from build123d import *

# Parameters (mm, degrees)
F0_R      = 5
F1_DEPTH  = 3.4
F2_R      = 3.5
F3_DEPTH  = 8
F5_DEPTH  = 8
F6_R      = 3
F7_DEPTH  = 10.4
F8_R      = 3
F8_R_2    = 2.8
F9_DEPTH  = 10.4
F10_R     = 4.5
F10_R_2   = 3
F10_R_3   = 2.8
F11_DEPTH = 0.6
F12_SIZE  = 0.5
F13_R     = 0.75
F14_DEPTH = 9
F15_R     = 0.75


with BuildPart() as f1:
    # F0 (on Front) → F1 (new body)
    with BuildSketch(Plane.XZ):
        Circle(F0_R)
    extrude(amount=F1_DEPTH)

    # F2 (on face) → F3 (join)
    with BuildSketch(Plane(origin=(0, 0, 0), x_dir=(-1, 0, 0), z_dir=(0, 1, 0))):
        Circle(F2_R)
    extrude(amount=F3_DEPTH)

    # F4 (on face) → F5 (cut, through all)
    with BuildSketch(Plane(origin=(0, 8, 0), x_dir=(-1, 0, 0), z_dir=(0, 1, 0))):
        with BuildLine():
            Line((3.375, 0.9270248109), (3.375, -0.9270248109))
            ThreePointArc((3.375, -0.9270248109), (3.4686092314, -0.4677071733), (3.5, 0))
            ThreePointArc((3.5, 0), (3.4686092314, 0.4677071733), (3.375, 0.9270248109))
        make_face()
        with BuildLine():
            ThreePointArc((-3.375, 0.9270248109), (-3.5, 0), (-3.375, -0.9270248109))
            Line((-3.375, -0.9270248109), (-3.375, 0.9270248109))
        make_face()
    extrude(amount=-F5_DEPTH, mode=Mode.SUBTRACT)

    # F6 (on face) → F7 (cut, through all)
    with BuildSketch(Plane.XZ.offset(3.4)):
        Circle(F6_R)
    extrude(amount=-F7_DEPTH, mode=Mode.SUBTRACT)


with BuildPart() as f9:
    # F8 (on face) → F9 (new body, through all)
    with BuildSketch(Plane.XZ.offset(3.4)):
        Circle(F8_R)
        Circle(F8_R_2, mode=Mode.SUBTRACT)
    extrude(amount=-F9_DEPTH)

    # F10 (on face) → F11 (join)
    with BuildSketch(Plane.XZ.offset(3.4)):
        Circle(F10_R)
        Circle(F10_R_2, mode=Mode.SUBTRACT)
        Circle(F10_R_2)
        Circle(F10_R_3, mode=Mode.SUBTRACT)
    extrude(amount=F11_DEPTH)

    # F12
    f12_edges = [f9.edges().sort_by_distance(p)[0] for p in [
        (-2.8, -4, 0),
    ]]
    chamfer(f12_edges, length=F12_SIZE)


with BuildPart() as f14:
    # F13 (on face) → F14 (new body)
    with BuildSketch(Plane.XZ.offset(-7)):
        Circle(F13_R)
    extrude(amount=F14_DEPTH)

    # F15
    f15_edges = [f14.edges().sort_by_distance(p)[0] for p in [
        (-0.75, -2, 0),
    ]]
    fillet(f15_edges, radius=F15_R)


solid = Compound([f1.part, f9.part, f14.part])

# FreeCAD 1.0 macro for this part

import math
import FreeCAD as App
import Part
import Sketcher

V = App.Vector
Q = App.Units.Quantity


def edges_at(feature, points):
    """Names of the edges that pass closest to the given points."""
    edges = feature.Shape.Edges
    near = lambda p: min(range(len(edges)), key=lambda i: edges[i].distToShape(Part.Vertex(*p))[0])
    return sorted({f"Edge{near(p) + 1}" for p in points})

doc = App.newDocument("Part")
body = doc.addObject("PartDesign::Body", "Body")

# Sketch on XZ plane
sketch1 = body.newObject("Sketcher::SketchObject", "Sketch")
sketch1.AttachmentSupport = (doc.getObject("XZ_Plane"), [""])
sketch1.MapMode = "FlatFace"
sketch1.addGeometry(Part.Circle(V(0, 0, 0), V(0, 0, 1), 5), False)
sketch1.addConstraint(Sketcher.Constraint("Coincident", 0, 3, -1, 1))
sketch1.addConstraint(Sketcher.Constraint("Diameter", 0, Q("10 mm")))
pad1 = body.newObject("PartDesign::Pad", "Pad")
pad1.Profile = sketch1
pad1.Length = 3.4

# Sketch on XZ plane
sketch2 = body.newObject("Sketcher::SketchObject", "Sketch001")
sketch2.AttachmentSupport = (doc.getObject("XZ_Plane"), [""])
sketch2.MapMode = "FlatFace"
sketch2.addGeometry(Part.Circle(V(0, 0, 0), V(0, 0, 1), 3.5), False)
sketch2.addConstraint(Sketcher.Constraint("Coincident", 0, 3, -1, 1))
sketch2.addConstraint(Sketcher.Constraint("Diameter", 0, Q("7 mm")))
pad2 = body.newObject("PartDesign::Pad", "Pad001")
pad2.Profile = sketch2
pad2.Length = 8
pad2.Reversed = True

# Sketch on XZ plane
sketch3 = body.newObject("Sketcher::SketchObject", "Sketch002")
sketch3.AttachmentSupport = (doc.getObject("XZ_Plane"), [""])
sketch3.MapMode = "FlatFace"
sketch3.AttachmentOffset = App.Placement(V(0, 0, -8), App.Rotation())
sketch3.addGeometry(Part.LineSegment(V(-3.4, 0.9, 0), V(-3.4, -0.9, 0)), False)
sketch3.addGeometry(Part.ArcOfCircle(Part.Circle(V(0, 0, 0), V(0, 0, 1), 3.5), math.radians(180), math.radians(195.36)), False)
sketch3.addGeometry(Part.ArcOfCircle(Part.Circle(V(0, 0, 0), V(0, 0, 1), 3.5), math.radians(164.64), math.radians(180)), False)
sketch3.addGeometry(Part.ArcOfCircle(Part.Circle(V(0, 0, 0), V(0, 0, 1), 3.5), math.radians(-15), math.radians(15)), False)
sketch3.addGeometry(Part.LineSegment(V(3.4, -0.9, 0), V(3.4, 0.9, 0)), False)
sketch3.addConstraint(Sketcher.Constraint("Coincident", 0, 2, 1, 2))
sketch3.addConstraint(Sketcher.Constraint("Tangent", 1, 1, 2, 2))
sketch3.addConstraint(Sketcher.Constraint("Coincident", 2, 1, 0, 1))
sketch3.addConstraint(Sketcher.Constraint("Coincident", 3, 1, 4, 1))
sketch3.addConstraint(Sketcher.Constraint("Coincident", 4, 2, 3, 2))
sketch3.addConstraint(Sketcher.Constraint("Vertical", 0))
sketch3.addConstraint(Sketcher.Constraint("Vertical", 4))
sketch3.addConstraint(Sketcher.Constraint("Coincident", 1, 3, -1, 1))
sketch3.addConstraint(Sketcher.Constraint("Coincident", 3, 3, -1, 1))
sketch3.addConstraint(Sketcher.Constraint("Equal", 1, 2))
sketch3.addConstraint(Sketcher.Constraint("Equal", 2, 3))
sketch3.addConstraint(Sketcher.Constraint("PointOnObject", 1, 1, -1))
sketch3.addConstraint(Sketcher.Constraint("Horizontal", 0, 2, 3, 1))
sketch3.addConstraint(Sketcher.Constraint("Radius", 1, Q("3.5 mm")))
sketch3.addConstraint(Sketcher.Constraint("DistanceX", 0, 2, 3, 1, Q("6.75 mm")))
pocket1 = body.newObject("PartDesign::Pocket", "Pocket")
pocket1.Profile = sketch3
pocket1.Length = 8
pocket1.Reversed = True

# Sketch on XZ plane
sketch4 = body.newObject("Sketcher::SketchObject", "Sketch003")
sketch4.AttachmentSupport = (doc.getObject("XZ_Plane"), [""])
sketch4.MapMode = "FlatFace"
sketch4.AttachmentOffset = App.Placement(V(0, 0, 3.4), App.Rotation())
sketch4.addGeometry(Part.Circle(V(0, 0, 0), V(0, 0, 1), 3), False)
sketch4.addConstraint(Sketcher.Constraint("Coincident", 0, 3, -1, 1))
sketch4.addConstraint(Sketcher.Constraint("Diameter", 0, Q("6 mm")))
pocket2 = body.newObject("PartDesign::Pocket", "Pocket001")
pocket2.Profile = sketch4
pocket2.Length = 10.4
body2 = doc.addObject("PartDesign::Body", "Body001")

# Sketch on XZ plane
sketch5 = body2.newObject("Sketcher::SketchObject", "Sketch004")
sketch5.AttachmentSupport = (doc.getObject("XZ_Plane001"), [""])
sketch5.MapMode = "FlatFace"
sketch5.AttachmentOffset = App.Placement(V(0, 0, 3.4), App.Rotation())
sketch5.addGeometry(Part.Circle(V(0, 0, 0), V(0, 0, 1), 3), False)
sketch5.addGeometry(Part.Circle(V(0, 0, 0), V(0, 0, 1), 2.8), False)
sketch5.addConstraint(Sketcher.Constraint("Coincident", 0, 3, -1, 1))
sketch5.addConstraint(Sketcher.Constraint("Coincident", 1, 3, -1, 1))
sketch5.addConstraint(Sketcher.Constraint("Diameter", 0, Q("6 mm")))
sketch5.addConstraint(Sketcher.Constraint("Diameter", 1, Q("5.6 mm")))
pad3 = body2.newObject("PartDesign::Pad", "Pad002")
pad3.Profile = sketch5
pad3.Length = 10.4
pad3.Reversed = True

# Sketch on XZ plane
sketch6 = body2.newObject("Sketcher::SketchObject", "Sketch005")
sketch6.AttachmentSupport = (doc.getObject("XZ_Plane001"), [""])
sketch6.MapMode = "FlatFace"
sketch6.AttachmentOffset = App.Placement(V(0, 0, 3.4), App.Rotation())
sketch6.addGeometry(Part.Circle(V(0, 0, 0), V(0, 0, 1), 4.5), False)
sketch6.addGeometry(Part.Circle(V(0, 0, 0), V(0, 0, 1), 2.8), False)
sketch6.addConstraint(Sketcher.Constraint("Coincident", 0, 3, -1, 1))
sketch6.addConstraint(Sketcher.Constraint("Coincident", 1, 3, -1, 1))
sketch6.addConstraint(Sketcher.Constraint("Diameter", 0, Q("9 mm")))
sketch6.addConstraint(Sketcher.Constraint("Diameter", 1, Q("5.6 mm")))
pad4 = body2.newObject("PartDesign::Pad", "Pad003")
pad4.Profile = sketch6
pad4.Length = 0.6
doc.recompute()

chamfer = body2.newObject("PartDesign::Chamfer", "Chamfer")
chamfer.Base = (pad4, edges_at(pad4, [(-2.8, -4, 0)]))
chamfer.Size = 0.5
body3 = doc.addObject("PartDesign::Body", "Body002")

# Sketch on XZ plane
sketch7 = body3.newObject("Sketcher::SketchObject", "Sketch006")
sketch7.AttachmentSupport = (doc.getObject("XZ_Plane002"), [""])
sketch7.MapMode = "FlatFace"
sketch7.AttachmentOffset = App.Placement(V(0, 0, -7), App.Rotation())
sketch7.addGeometry(Part.Circle(V(0, 0, 0), V(0, 0, 1), 0.8), False)
sketch7.addConstraint(Sketcher.Constraint("Coincident", 0, 3, -1, 1))
sketch7.addConstraint(Sketcher.Constraint("Diameter", 0, Q("1.5 mm")))
pad5 = body3.newObject("PartDesign::Pad", "Pad004")
pad5.Profile = sketch7
pad5.Length = 9
doc.recompute()

fillet = body3.newObject("PartDesign::Fillet", "Fillet")
fillet.Base = (pad5, edges_at(pad5, [(-0.75, -2, 0)]))
fillet.Radius = 0.75

doc.recompute()
